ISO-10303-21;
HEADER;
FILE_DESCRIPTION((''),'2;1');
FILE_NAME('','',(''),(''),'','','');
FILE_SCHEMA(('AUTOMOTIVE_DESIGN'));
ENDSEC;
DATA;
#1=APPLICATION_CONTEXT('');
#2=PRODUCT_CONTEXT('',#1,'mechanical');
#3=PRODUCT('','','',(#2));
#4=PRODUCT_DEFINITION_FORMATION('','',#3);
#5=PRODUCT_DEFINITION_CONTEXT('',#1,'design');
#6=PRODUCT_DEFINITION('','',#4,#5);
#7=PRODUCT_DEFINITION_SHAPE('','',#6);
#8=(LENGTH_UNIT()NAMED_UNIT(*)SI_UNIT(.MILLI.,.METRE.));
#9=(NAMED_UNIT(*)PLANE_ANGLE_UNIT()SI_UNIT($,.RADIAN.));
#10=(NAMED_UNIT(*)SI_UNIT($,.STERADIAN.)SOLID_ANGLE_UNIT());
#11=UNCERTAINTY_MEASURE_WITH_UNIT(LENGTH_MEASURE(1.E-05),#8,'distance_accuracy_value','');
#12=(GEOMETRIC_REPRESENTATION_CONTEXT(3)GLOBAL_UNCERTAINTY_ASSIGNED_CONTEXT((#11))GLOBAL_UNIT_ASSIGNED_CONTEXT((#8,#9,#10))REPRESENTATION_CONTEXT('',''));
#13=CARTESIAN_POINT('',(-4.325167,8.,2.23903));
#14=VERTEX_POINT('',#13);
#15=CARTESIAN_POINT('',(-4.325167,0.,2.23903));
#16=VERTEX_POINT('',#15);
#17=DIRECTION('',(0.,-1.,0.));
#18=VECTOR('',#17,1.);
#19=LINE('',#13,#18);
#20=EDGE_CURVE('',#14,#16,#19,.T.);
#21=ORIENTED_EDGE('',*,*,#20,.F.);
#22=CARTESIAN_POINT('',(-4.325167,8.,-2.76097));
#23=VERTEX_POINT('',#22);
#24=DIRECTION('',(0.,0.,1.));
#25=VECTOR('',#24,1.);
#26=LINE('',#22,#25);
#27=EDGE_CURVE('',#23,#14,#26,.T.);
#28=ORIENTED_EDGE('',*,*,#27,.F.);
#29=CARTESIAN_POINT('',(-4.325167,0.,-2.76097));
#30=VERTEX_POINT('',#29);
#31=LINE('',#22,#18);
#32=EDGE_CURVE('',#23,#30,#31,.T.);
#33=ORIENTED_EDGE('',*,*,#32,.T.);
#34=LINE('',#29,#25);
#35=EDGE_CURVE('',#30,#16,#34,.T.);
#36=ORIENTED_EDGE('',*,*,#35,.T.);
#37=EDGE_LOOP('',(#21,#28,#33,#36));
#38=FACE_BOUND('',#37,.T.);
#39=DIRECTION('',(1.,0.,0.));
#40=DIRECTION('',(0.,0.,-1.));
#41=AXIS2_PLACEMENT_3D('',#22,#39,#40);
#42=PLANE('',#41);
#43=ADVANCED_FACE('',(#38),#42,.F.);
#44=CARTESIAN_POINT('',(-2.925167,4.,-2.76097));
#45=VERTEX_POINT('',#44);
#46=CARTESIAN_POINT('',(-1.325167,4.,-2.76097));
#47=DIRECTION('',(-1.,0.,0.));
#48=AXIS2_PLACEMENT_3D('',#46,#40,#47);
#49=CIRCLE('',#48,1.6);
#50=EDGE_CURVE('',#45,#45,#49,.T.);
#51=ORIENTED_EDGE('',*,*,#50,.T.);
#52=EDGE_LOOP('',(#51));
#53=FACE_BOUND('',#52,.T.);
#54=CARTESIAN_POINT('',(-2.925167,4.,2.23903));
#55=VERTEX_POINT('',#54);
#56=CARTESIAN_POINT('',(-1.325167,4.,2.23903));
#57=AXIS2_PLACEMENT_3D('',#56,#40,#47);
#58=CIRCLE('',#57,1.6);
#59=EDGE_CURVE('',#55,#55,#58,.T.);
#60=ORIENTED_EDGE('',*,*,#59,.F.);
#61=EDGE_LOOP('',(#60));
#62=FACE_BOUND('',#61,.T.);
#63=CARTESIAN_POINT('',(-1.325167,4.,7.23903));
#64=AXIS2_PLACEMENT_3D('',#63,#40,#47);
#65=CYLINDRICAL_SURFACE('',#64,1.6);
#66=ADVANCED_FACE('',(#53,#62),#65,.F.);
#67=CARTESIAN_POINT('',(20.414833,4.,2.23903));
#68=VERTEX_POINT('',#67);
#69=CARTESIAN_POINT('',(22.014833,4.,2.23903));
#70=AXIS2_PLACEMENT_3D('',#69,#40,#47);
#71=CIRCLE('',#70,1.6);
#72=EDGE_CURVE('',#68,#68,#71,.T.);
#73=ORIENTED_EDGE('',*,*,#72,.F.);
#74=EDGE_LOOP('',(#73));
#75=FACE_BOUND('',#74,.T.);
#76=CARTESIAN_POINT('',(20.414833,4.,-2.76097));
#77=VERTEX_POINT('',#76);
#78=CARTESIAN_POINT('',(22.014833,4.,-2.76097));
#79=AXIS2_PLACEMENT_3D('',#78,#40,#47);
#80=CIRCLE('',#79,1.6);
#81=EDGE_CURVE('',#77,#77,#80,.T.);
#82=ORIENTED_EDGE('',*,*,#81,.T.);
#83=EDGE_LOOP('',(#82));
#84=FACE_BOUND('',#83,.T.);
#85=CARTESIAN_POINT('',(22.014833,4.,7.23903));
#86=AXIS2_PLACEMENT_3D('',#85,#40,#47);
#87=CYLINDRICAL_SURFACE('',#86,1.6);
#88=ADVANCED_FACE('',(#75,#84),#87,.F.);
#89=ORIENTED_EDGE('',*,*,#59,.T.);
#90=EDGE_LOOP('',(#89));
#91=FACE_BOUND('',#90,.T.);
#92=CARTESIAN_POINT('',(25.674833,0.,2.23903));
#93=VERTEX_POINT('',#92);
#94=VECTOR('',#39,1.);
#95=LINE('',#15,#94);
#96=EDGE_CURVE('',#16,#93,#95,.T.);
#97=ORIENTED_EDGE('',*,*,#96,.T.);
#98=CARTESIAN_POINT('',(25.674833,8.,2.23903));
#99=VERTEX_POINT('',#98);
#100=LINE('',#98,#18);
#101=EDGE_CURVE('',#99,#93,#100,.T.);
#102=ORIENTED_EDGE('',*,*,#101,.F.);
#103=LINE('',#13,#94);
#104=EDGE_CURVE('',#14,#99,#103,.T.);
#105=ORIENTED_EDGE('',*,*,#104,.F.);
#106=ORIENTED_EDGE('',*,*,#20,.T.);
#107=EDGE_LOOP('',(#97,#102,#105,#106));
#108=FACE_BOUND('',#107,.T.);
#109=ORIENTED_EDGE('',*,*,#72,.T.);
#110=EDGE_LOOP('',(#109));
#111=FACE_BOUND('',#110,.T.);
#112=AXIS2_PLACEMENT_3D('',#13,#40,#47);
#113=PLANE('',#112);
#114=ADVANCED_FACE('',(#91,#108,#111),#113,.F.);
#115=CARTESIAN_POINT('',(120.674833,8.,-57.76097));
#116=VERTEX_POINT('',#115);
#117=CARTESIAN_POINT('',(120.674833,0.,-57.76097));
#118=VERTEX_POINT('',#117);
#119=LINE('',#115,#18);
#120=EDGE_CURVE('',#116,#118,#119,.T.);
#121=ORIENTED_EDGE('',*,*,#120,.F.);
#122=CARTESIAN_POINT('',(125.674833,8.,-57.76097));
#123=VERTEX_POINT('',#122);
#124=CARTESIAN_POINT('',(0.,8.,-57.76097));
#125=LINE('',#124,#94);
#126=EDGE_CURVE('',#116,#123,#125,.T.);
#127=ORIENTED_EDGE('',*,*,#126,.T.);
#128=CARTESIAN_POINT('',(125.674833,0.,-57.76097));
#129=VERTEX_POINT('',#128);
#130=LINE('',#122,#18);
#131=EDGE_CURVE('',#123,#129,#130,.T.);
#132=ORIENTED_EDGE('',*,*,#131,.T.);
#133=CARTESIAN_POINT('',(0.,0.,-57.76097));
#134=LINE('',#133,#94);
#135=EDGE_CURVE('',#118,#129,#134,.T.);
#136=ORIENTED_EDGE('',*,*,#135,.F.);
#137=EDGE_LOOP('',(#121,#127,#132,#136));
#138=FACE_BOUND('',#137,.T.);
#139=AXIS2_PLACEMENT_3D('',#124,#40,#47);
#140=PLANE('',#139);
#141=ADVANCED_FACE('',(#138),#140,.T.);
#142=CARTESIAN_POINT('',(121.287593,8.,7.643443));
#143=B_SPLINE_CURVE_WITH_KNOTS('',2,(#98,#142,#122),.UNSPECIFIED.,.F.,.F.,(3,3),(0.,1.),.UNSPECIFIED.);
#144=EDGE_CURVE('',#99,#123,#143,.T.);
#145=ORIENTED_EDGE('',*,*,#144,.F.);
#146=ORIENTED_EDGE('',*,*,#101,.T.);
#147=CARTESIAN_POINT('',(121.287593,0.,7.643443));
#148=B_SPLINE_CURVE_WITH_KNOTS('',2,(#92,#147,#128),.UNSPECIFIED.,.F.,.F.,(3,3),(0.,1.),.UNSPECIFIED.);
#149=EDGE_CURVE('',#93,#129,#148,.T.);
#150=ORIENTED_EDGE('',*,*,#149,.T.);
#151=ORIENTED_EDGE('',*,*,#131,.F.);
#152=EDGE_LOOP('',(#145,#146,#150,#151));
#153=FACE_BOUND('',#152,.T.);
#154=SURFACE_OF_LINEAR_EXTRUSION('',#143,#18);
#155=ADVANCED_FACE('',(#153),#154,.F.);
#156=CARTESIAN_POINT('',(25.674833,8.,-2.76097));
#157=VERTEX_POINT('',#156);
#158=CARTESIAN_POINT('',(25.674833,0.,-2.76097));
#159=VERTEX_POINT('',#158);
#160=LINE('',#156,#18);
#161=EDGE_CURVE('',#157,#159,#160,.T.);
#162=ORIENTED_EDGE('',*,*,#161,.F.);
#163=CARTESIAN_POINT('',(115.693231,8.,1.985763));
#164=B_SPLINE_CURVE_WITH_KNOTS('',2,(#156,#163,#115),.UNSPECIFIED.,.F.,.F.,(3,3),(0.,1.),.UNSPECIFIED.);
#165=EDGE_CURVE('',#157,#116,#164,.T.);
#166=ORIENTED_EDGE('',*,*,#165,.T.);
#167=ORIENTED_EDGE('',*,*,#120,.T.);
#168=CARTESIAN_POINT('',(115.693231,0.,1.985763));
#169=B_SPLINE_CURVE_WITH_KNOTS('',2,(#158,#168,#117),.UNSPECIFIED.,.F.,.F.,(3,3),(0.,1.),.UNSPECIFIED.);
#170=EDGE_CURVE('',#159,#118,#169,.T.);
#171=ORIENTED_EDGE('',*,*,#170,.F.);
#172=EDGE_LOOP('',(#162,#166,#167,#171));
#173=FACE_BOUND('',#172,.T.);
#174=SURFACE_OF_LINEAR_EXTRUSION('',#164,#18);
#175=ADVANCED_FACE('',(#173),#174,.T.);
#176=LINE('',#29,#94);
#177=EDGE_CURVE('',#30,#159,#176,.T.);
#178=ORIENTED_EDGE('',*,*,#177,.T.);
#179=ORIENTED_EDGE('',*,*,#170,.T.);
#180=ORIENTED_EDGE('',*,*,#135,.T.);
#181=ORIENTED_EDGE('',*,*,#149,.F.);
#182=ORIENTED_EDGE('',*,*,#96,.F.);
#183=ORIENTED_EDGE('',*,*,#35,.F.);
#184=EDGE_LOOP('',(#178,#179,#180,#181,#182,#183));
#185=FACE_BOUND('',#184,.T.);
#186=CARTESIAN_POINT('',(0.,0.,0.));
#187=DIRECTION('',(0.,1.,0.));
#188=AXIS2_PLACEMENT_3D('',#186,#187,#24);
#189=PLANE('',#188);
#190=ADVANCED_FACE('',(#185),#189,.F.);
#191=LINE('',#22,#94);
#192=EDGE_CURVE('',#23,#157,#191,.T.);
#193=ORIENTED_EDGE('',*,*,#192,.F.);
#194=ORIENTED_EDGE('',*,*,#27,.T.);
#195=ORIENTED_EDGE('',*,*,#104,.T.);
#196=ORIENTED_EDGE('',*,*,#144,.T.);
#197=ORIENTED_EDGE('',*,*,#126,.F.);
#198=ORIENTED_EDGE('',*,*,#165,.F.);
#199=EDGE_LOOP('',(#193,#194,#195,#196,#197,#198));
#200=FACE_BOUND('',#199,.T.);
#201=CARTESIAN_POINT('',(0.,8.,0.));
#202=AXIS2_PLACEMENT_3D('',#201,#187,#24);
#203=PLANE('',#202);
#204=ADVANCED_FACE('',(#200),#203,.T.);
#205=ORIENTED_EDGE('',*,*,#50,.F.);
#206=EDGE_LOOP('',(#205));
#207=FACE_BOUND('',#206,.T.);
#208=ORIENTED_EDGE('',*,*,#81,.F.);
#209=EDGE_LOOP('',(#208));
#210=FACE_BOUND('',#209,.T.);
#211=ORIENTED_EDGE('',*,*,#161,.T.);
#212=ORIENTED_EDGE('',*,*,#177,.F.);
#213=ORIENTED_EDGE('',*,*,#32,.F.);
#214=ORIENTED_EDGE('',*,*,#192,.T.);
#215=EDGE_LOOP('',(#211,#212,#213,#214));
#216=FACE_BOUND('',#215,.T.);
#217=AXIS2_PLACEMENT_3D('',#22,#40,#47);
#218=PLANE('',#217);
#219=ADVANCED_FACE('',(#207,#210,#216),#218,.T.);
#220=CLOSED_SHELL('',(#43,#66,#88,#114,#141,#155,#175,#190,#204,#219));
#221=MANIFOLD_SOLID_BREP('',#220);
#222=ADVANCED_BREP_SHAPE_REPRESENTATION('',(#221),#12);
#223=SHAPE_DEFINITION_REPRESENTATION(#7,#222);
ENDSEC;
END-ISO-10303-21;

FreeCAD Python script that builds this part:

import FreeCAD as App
import Part
import Sketcher
from FreeCAD import Vector

doc = App.newDocument("Part")
body = doc.addObject("PartDesign::Body", "Body")

sketch1 = body.newObject("Sketcher::SketchObject", "Sketch")
sketch1.AttachmentSupport = (doc.getObject("XZ_Plane"), [""])
sketch1.MapMode = "FlatFace"
sketch1.addGeometry([
    Part.LineSegment(Vector(125.674833, -57.76097, 0), Vector(120.674833, -57.76097, 0)),
    Part.BSplineCurve([Vector(25.674833, -2.76097, 0), Vector(115.693231, 1.985763, 0), Vector(120.674833, -57.76097, 0)], [3, 3], [0, 1], False, 2, [1, 1, 1], False),
    Part.LineSegment(Vector(25.674833, -2.76097, 0), Vector(-4.325167, -2.76097, 0)),
    Part.LineSegment(Vector(-4.325167, -2.76097, 0), Vector(-4.325167, 2.23903, 0)),
    Part.LineSegment(Vector(-4.325167, 2.23903, 0), Vector(25.674833, 2.23903, 0)),
    Part.BSplineCurve([Vector(25.674833, 2.23903, 0), Vector(121.287593, 7.643443, 0), Vector(125.674833, -57.76097, 0)], [3, 3], [0, 1], False, 2, [1, 1, 1], False),
], False)
sketch1.addConstraint([
    Sketcher.Constraint("Block", 1),
    Sketcher.Constraint("Block", 5),
    Sketcher.Constraint("Coincident", 0, 2, 1, 2),
    Sketcher.Constraint("Coincident", 1, 1, 2, 1),
    Sketcher.Constraint("Coincident", 2, 2, 3, 1),
    Sketcher.Constraint("Coincident", 3, 2, 4, 1),
    Sketcher.Constraint("Coincident", 4, 2, 5, 1),
    Sketcher.Constraint("Coincident", 5, 2, 0, 1),
    Sketcher.Constraint("Horizontal", 2),
    Sketcher.Constraint("Vertical", 3),
    Sketcher.Constraint("Horizontal", 4),
    Sketcher.Constraint("DistanceX", 2, 2, 2, 1, 30.0),
])
pad1 = body.newObject("PartDesign::Pad", "Pad")
pad1.Profile = sketch1
pad1.Length = 8
pad1.Reversed = True

sketch2 = body.newObject("Sketcher::SketchObject", "Sketch001")
sketch2.AttachmentSupport = (doc.getObject("XY_Plane"), [""])
sketch2.MapMode = "FlatFace"
sketch2.AttachmentOffset = App.Placement(Vector(0, 0, -2.76097), App.Rotation())
sketch2.addGeometry([
    Part.Circle(Vector(22, 4, 0), Vector(0, 0, 1), 1.6),
    Part.Circle(Vector(-1.3, 4, 0), Vector(0, 0, 1), 1.6),
], False)
sketch2.addConstraint([
    Sketcher.Constraint("Equal", 0, 1),
    Sketcher.Constraint("Horizontal", 0, 3, 1, 3),
    Sketcher.Constraint("Diameter", 0, 3.2),
    Sketcher.Constraint("DistanceY", -1, 1, 0, 3, 4.0),
    Sketcher.Constraint("DistanceX", 1, 3, 0, 3, 23.34),
    Sketcher.Constraint("DistanceX", -1, 1, 0, 3, 22.014833),
])
pocket1 = body.newObject("PartDesign::Pocket", "Pocket")
pocket1.Profile = sketch2
pocket1.Length = 10
pocket1.Reversed = True

doc.recompute()
